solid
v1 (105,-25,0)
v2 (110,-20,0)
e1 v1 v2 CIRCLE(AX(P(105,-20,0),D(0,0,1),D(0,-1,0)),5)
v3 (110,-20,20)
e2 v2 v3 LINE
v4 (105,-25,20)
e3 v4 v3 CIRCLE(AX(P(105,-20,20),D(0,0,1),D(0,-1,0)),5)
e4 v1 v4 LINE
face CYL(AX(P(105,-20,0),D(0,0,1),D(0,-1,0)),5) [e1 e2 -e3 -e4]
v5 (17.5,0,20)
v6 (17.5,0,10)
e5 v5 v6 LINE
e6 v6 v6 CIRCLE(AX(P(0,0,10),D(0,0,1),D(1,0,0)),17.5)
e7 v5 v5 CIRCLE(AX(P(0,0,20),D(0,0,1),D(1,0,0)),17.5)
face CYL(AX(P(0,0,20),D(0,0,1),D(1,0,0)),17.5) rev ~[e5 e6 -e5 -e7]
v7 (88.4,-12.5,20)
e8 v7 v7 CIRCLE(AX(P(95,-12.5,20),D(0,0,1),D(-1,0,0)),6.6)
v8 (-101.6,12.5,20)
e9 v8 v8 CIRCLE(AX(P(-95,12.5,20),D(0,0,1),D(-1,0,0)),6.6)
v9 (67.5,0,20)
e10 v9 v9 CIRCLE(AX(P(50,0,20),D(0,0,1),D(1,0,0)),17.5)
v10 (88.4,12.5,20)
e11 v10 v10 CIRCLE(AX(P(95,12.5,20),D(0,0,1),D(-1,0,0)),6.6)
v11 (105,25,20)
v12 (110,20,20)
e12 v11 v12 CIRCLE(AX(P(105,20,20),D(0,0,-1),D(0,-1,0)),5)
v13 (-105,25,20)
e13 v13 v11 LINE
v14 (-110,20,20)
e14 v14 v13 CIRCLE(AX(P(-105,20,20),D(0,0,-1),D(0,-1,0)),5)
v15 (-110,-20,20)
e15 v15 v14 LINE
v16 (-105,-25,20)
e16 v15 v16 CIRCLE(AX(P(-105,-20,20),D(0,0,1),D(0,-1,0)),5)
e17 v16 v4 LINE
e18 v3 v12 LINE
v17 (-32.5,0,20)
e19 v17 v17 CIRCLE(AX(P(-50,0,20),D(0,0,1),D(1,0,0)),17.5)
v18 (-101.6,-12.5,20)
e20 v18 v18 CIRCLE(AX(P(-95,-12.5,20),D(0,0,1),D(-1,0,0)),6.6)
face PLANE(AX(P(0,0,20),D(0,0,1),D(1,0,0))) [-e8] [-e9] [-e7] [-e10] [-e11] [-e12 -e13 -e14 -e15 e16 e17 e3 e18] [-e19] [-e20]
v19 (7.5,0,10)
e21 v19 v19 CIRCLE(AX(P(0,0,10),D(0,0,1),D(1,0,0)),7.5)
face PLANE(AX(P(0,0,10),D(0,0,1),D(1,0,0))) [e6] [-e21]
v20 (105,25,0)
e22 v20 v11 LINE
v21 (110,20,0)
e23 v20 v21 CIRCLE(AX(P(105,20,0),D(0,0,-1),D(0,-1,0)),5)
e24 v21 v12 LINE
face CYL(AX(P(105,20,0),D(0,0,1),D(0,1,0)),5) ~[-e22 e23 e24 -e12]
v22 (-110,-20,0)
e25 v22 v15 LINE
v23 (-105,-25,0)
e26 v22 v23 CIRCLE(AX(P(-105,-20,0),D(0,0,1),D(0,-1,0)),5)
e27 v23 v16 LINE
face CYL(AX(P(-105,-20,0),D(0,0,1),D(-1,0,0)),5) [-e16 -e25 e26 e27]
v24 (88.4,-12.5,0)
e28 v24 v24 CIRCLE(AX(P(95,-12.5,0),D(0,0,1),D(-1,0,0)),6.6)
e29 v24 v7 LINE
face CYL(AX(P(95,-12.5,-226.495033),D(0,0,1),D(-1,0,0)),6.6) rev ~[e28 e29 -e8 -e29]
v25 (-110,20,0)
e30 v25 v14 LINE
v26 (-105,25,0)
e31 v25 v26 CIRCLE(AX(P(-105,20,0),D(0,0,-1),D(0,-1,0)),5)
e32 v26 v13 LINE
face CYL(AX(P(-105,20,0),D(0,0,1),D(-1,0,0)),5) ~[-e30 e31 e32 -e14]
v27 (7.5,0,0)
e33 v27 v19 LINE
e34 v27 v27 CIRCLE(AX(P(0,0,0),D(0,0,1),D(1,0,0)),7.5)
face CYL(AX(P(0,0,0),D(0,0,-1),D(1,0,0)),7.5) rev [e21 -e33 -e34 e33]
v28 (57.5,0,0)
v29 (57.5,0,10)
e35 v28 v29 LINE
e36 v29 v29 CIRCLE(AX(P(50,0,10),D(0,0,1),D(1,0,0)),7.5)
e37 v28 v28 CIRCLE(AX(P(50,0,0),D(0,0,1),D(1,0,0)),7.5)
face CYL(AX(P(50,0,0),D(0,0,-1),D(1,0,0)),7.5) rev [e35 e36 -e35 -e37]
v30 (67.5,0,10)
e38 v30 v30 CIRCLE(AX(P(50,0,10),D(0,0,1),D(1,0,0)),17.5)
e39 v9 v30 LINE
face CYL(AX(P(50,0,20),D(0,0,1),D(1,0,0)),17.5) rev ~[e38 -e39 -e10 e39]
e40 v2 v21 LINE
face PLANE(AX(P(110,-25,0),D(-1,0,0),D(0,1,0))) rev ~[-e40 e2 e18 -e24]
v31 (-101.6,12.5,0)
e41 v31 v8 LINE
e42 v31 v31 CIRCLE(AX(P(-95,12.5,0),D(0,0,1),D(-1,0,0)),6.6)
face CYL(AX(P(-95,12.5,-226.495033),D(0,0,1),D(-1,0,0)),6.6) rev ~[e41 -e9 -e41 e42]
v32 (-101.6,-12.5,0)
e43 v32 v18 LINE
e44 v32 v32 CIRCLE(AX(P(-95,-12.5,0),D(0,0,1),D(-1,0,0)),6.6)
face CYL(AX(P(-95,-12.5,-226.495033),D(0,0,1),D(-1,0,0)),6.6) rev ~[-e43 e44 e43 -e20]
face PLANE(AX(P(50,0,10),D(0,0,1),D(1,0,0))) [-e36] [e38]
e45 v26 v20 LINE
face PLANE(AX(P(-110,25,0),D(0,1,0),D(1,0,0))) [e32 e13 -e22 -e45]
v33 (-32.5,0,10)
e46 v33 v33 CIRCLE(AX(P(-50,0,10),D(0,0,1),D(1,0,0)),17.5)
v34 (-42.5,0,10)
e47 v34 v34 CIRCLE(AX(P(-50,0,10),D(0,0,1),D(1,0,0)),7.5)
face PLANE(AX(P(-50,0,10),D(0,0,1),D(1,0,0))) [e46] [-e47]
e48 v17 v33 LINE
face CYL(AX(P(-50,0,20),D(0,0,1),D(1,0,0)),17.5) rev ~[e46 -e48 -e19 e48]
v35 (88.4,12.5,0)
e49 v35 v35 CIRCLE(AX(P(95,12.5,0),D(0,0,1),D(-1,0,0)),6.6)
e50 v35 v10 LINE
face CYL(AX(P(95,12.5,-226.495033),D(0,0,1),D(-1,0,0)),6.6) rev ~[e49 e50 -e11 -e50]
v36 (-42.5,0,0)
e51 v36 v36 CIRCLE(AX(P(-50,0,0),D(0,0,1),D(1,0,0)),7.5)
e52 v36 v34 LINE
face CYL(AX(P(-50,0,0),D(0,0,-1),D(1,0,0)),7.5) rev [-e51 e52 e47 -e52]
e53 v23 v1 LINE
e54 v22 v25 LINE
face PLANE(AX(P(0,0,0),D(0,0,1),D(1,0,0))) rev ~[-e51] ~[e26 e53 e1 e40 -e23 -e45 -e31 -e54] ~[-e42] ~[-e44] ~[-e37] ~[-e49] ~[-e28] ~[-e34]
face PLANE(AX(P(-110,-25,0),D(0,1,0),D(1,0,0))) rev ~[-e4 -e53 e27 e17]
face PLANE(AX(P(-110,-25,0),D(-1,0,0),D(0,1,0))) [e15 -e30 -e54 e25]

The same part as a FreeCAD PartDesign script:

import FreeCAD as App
import Part
import Sketcher
Q = App.Units.Quantity


def edges_at(feature, points):
    """Names of the edges that pass closest to the given points."""
    edges = feature.Shape.Edges
    near = lambda p: min(range(len(edges)), key=lambda i: edges[i].distToShape(Part.Vertex(*p))[0])
    return sorted({f"Edge{near(p) + 1}" for p in points})


def add_polygon(sketch, points):
    """Adds a closed chain of lines whose ends are joined by coincident constraints."""
    first, n = sketch.GeometryCount, len(points)
    for a, b in zip(points, points[1:] + points[:1]):
        sketch.addGeometry(Part.LineSegment(App.Vector(*a, 0), App.Vector(*b, 0)), False)
    for i in range(n):
        sketch.addConstraint(Sketcher.Constraint("Coincident", first + i, 2, first + (i + 1) % n, 1))

doc = App.newDocument("Part")
body = doc.addObject("PartDesign::Body", "Body")

# Sketch on XY plane
sketch1 = body.newObject("Sketcher::SketchObject", "Sketch")
sketch1.AttachmentSupport = (doc.getObject("XY_Plane"), [""])
sketch1.MapMode = "FlatFace"
add_polygon(sketch1, [(-110, 25), (-110, -25), (110, -25), (110, 25)])  # lines 0-3
sketch1.addGeometry(Part.Circle(App.Vector(-50, 0, 0), App.Vector(0, 0, 1), 8), False)  # 4
sketch1.addGeometry(Part.Circle(App.Vector(0, 0, 0), App.Vector(0, 0, 1), 8), False)  # 5
sketch1.addGeometry(Part.Circle(App.Vector(50, 0, 0), App.Vector(0, 0, 1), 8), False)  # 6
sketch1.addConstraint(Sketcher.Constraint("Vertical", 0))
sketch1.addConstraint(Sketcher.Constraint("Horizontal", 1))
sketch1.addConstraint(Sketcher.Constraint("Vertical", 2))
sketch1.addConstraint(Sketcher.Constraint("Horizontal", 3))
sketch1.addConstraint(Sketcher.Constraint("Coincident", 5, 3, -1, 1))
sketch1.addConstraint(Sketcher.Constraint("Equal", 4, 5))
sketch1.addConstraint(Sketcher.Constraint("Equal", 5, 6))
sketch1.addConstraint(Sketcher.Constraint("Symmetric", 4, 3, 6, 3, -1, 1))
sketch1.addConstraint(Sketcher.Constraint("Symmetric", 0, 2, 2, 2, -1, 1))
sketch1.addConstraint(Sketcher.Constraint("PointOnObject", 4, 3, -1))
sketch1.addConstraint(Sketcher.Constraint("Diameter", 4, Q("15 mm")))
sketch1.addConstraint(Sketcher.Constraint("DistanceX", 1, 1, 1, 2, Q("220 mm")))
sketch1.addConstraint(Sketcher.Constraint("DistanceY", 0, 2, 0, 1, Q("50 mm")))
sketch1.addConstraint(Sketcher.Constraint("DistanceX", 4, 3, -1, 1, Q("50 mm")))
pad1 = body.newObject("PartDesign::Pad", "Pad")
pad1.Profile = sketch1
pad1.Length = 20

# Sketch on XY plane
sketch2 = body.newObject("Sketcher::SketchObject", "Sketch001")
sketch2.AttachmentSupport = (doc.getObject("XY_Plane"), [""])
sketch2.MapMode = "FlatFace"
sketch2.addGeometry(Part.Circle(App.Vector(-95, 12, 0), App.Vector(0, 0, 1), 7), False)
sketch2.addGeometry(Part.Circle(App.Vector(-95, -12, 0), App.Vector(0, 0, 1), 7), False)
sketch2.addGeometry(Part.Circle(App.Vector(95, 12, 0), App.Vector(0, 0, 1), 7), False)
sketch2.addGeometry(Part.Circle(App.Vector(95, -12, 0), App.Vector(0, 0, 1), 7), False)
sketch2.addConstraint(Sketcher.Constraint("Equal", 0, 1))
sketch2.addConstraint(Sketcher.Constraint("Equal", 1, 2))
sketch2.addConstraint(Sketcher.Constraint("Equal", 2, 3))
sketch2.addConstraint(Sketcher.Constraint("Symmetric", 1, 3, 2, 3, -1, 1))
sketch2.addConstraint(Sketcher.Constraint("Symmetric", 0, 3, 3, 3, -1, 1))
sketch2.addConstraint(Sketcher.Constraint("Symmetric", 0, 3, 2, 3, -2))
sketch2.addConstraint(Sketcher.Constraint("Diameter", 0, Q("13.2 mm")))
sketch2.addConstraint(Sketcher.Constraint("DistanceX", 0, 3, -1, 1, Q("95 mm")))
sketch2.addConstraint(Sketcher.Constraint("DistanceY", 1, 3, 0, 3, Q("25 mm")))
doc.recompute()
hole = body.newObject("PartDesign::Hole", "Hole")
hole.Profile = sketch2
hole.ThreadType = "None"
hole.Diameter = 13.2
hole.DepthType = "ThroughAll"
hole.Reversed = True
doc.recompute()

fillet = body.newObject("PartDesign::Fillet", "Fillet")
fillet.Base = (hole, edges_at(hole, [
    (-110, -25, 10),
    (110, -25, 10),
    (110, 25, 10),
    (-110, 25, 10),
]))
fillet.Radius = 5

# Sketch on XY plane
sketch3 = body.newObject("Sketcher::SketchObject", "Sketch002")
sketch3.AttachmentSupport = (doc.getObject("XY_Plane"), [""])
sketch3.MapMode = "FlatFace"
sketch3.AttachmentOffset = App.Placement(App.Vector(0, 0, 20), App.Rotation())
sketch3.addGeometry(Part.Circle(App.Vector(-50, 0, 0), App.Vector(0, 0, 1), 18), False)
sketch3.addGeometry(Part.Circle(App.Vector(-50, 0, 0), App.Vector(0, 0, 1), 8), False)
sketch3.addGeometry(Part.Circle(App.Vector(50, 0, 0), App.Vector(0, 0, 1), 18), False)
sketch3.addGeometry(Part.Circle(App.Vector(50, 0, 0), App.Vector(0, 0, 1), 8), False)
sketch3.addGeometry(Part.Circle(App.Vector(0, 0, 0), App.Vector(0, 0, 1), 18), False)
sketch3.addGeometry(Part.Circle(App.Vector(0, 0, 0), App.Vector(0, 0, 1), 8), False)
sketch3.addConstraint(Sketcher.Constraint("Coincident", 4, 3, -1, 1))
sketch3.addConstraint(Sketcher.Constraint("Coincident", 5, 3, -1, 1))
sketch3.addConstraint(Sketcher.Constraint("Coincident", 1, 3, 0, 3))
sketch3.addConstraint(Sketcher.Constraint("Coincident", 3, 3, 2, 3))
sketch3.addConstraint(Sketcher.Constraint("Equal", 0, 2))
sketch3.addConstraint(Sketcher.Constraint("Equal", 1, 3))
sketch3.addConstraint(Sketcher.Constraint("Equal", 2, 4))
sketch3.addConstraint(Sketcher.Constraint("Equal", 3, 5))
sketch3.addConstraint(Sketcher.Constraint("Symmetric", 0, 3, 2, 3, -1, 1))
sketch3.addConstraint(Sketcher.Constraint("PointOnObject", 0, 3, -1))
sketch3.addConstraint(Sketcher.Constraint("Diameter", 0, Q("35 mm")))
sketch3.addConstraint(Sketcher.Constraint("Diameter", 1, Q("15 mm")))
sketch3.addConstraint(Sketcher.Constraint("DistanceX", 0, 3, -1, 1, Q("50 mm")))
pocket1 = body.newObject("PartDesign::Pocket", "Pocket")
pocket1.Profile = sketch3
pocket1.Length = 10

doc.recompute()
